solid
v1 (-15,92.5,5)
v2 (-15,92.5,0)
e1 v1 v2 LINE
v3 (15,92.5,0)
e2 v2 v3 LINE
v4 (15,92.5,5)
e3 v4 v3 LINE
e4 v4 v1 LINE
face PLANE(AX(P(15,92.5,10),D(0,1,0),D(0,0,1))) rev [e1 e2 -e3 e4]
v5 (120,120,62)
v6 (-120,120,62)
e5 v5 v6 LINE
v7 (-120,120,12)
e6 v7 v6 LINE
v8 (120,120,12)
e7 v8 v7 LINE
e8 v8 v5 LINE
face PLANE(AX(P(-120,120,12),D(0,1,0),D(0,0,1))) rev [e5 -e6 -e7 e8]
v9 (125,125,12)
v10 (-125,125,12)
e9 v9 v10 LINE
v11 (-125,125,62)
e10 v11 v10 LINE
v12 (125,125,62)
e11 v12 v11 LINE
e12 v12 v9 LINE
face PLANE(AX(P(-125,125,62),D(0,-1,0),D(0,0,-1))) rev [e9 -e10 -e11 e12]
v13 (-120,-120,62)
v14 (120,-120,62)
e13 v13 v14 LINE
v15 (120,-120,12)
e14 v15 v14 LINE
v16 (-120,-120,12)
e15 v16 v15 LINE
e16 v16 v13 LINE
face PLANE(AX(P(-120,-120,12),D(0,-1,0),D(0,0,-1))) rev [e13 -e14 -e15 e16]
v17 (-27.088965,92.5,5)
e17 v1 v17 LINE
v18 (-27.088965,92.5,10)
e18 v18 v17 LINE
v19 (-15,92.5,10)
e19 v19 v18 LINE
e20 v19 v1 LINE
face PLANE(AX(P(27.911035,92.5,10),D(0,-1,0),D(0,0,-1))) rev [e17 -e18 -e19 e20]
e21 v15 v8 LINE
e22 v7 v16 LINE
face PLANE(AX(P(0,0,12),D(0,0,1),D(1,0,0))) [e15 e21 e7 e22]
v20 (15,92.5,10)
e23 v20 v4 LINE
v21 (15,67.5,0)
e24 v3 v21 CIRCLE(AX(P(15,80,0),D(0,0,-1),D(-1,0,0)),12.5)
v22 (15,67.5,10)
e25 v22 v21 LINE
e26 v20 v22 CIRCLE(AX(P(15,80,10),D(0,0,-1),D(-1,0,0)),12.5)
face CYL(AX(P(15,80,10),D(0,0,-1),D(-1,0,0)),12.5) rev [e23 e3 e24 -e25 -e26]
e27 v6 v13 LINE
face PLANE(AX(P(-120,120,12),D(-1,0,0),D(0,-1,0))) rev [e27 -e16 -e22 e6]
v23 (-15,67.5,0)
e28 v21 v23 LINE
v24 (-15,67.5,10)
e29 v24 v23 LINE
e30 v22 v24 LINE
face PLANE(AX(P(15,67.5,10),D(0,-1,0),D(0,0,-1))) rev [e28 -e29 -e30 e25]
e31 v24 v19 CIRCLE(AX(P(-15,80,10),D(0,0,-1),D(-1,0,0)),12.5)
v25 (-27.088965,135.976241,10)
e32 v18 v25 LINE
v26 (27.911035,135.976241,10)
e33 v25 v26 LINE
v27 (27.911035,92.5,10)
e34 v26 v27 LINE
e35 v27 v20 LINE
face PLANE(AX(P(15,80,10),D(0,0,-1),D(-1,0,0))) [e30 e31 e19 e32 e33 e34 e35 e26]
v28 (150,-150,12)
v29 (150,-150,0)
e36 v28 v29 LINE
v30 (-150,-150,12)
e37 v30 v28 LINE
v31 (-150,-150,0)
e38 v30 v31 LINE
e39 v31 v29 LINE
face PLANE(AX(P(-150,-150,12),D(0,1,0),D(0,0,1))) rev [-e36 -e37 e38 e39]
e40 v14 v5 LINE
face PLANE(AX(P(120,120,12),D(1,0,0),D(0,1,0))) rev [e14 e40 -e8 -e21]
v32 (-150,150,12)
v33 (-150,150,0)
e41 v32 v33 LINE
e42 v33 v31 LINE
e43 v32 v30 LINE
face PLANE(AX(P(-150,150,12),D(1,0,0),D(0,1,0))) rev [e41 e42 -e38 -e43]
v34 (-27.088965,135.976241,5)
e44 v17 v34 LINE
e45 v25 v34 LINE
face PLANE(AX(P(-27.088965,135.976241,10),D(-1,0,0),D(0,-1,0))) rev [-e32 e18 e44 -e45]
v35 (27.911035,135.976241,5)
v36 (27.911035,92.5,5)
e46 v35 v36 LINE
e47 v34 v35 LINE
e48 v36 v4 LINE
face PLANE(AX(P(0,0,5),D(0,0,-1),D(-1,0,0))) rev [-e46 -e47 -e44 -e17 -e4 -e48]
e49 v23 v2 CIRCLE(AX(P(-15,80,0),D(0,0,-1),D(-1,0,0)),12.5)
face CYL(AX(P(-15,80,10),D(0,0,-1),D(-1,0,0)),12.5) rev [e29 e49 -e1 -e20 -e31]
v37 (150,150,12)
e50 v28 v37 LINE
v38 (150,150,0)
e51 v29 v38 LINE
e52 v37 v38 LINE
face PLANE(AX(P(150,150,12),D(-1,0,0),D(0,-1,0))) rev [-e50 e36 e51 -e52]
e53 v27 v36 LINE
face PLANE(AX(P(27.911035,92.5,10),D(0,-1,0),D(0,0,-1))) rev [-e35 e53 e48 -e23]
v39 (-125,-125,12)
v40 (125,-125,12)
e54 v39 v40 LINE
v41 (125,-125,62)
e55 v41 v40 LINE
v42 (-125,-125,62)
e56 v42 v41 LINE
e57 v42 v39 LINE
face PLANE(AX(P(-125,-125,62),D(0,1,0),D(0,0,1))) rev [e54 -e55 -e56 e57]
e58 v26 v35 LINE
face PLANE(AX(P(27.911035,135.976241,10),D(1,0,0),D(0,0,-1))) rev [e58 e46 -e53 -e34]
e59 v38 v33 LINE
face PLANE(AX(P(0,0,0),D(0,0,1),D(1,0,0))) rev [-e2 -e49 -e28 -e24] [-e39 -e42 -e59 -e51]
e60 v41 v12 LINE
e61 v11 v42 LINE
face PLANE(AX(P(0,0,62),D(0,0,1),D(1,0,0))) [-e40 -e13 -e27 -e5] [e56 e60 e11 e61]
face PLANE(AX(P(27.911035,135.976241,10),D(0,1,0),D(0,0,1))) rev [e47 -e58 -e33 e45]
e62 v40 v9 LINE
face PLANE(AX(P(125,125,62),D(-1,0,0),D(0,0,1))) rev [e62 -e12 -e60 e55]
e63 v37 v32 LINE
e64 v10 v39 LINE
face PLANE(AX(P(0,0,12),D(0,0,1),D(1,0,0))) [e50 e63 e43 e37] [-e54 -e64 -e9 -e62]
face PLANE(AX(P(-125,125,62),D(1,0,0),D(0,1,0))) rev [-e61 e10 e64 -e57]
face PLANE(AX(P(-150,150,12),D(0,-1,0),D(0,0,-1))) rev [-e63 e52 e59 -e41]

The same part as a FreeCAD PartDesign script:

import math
import FreeCAD as App
import Part
import Sketcher

V = App.Vector


def add_polygon(sketch, points):
    """Adds a closed chain of lines whose ends are joined by coincident constraints."""
    first, n = sketch.GeometryCount, len(points)
    for a, b in zip(points, points[1:] + points[:1]):
        sketch.addGeometry(Part.LineSegment(App.Vector(*a, 0), App.Vector(*b, 0)), False)
    for i in range(n):
        sketch.addConstraint(Sketcher.Constraint("Coincident", first + i, 2, first + (i + 1) % n, 1))

doc = App.newDocument("Part")
body = doc.addObject("PartDesign::Body", "Body")

sketch1 = doc.addObject("Sketcher::SketchObject", "Sketch")
body.addObject(sketch1)
sketch1.AttachmentSupport = (doc.XY_Plane, [""])
sketch1.MapMode = "FlatFace"
add_polygon(sketch1, [(-150, 150), (-150, -150), (150, -150), (150, 150)])
sketch1.addConstraint([
    Sketcher.Constraint("Vertical", 0),
    Sketcher.Constraint("Horizontal", 1),
    Sketcher.Constraint("Vertical", 2),
    Sketcher.Constraint("Horizontal", 3),
    Sketcher.Constraint("Symmetric", 0, 2, 2, 2, -1, 1),
    Sketcher.Constraint("Equal", 3, 0),
    Sketcher.Constraint("DistanceX", 1, 1, 1, 2, 300.0),
])
pad1 = doc.addObject("PartDesign::Pad", "Pad")
body.addObject(pad1)
pad1.Profile = sketch1
pad1.Length = 12

sketch2 = doc.addObject("Sketcher::SketchObject", "Sketch001")
body.addObject(sketch2)
sketch2.AttachmentSupport = (doc.XY_Plane, [""])
sketch2.MapMode = "FlatFace"
sketch2.AttachmentOffset = App.Placement(V(0, 0, 12), App.Rotation())
add_polygon(sketch2, [(-125, 125), (-125, -125), (125, -125), (125, 125)])
sketch2.addConstraint([
    Sketcher.Constraint("Vertical", 0),
    Sketcher.Constraint("Horizontal", 1),
    Sketcher.Constraint("Vertical", 2),
    Sketcher.Constraint("Horizontal", 3),
    Sketcher.Constraint("Symmetric", 0, 2, 2, 2, -1, 1),
    Sketcher.Constraint("Equal", 3, 0),
    Sketcher.Constraint("DistanceX", 1, 1, 1, 2, 250.0),
])
pad2 = doc.addObject("PartDesign::Pad", "Pad001")
body.addObject(pad2)
pad2.Profile = sketch2
pad2.Length = 50

sketch3 = doc.addObject("Sketcher::SketchObject", "Sketch002")
body.addObject(sketch3)
sketch3.AttachmentSupport = (doc.XY_Plane, [""])
sketch3.MapMode = "FlatFace"
sketch3.addGeometry([
    Part.LineSegment(V(-15, 92, 0), V(15, 92, 0)),
    Part.ArcOfCircle(Part.Circle(V(15, 80, 0), V(0, 0, 1), 12), math.radians(-90), math.radians(90)),
    Part.LineSegment(V(15, 68, 0), V(-15, 68, 0)),
    Part.ArcOfCircle(Part.Circle(V(-15, 80, 0), V(0, 0, 1), 12), math.radians(90), math.radians(270)),
], False)
sketch3.addConstraint([
    Sketcher.Constraint("Tangent", 0, 2, 1, 2),
    Sketcher.Constraint("Tangent", 1, 1, 2, 1),
    Sketcher.Constraint("Tangent", 2, 2, 3, 2),
    Sketcher.Constraint("Tangent", 3, 1, 0, 1),
    Sketcher.Constraint("Horizontal", 0),
    Sketcher.Constraint("Horizontal", 2),
    Sketcher.Constraint("Radius", 1, 12.5),
    Sketcher.Constraint("DistanceX", 0, 1, 0, 2, 30.0),
    Sketcher.Constraint("DistanceX", -1, 1, 1, 3, 15.0),
    Sketcher.Constraint("DistanceY", -1, 1, 1, 3, 80.0),
])
pocket1 = doc.addObject("PartDesign::Pocket", "Pocket")
body.addObject(pocket1)
pocket1.Profile = sketch3
pocket1.Length = 10
pocket1.Reversed = True

sketch4 = doc.addObject("Sketcher::SketchObject", "Sketch003")
body.addObject(sketch4)
sketch4.AttachmentSupport = (doc.XY_Plane, [""])
sketch4.MapMode = "FlatFace"
sketch4.AttachmentOffset = App.Placement(V(0, 0, 5), App.Rotation())
add_polygon(sketch4, [(28, 136), (28, 92), (-27, 92), (-27, 136)])
sketch4.addConstraint([
    Sketcher.Constraint("Vertical", 0),
    Sketcher.Constraint("Horizontal", 1),
    Sketcher.Constraint("Vertical", 2),
    Sketcher.Constraint("Horizontal", 3),
    Sketcher.Constraint("DistanceX", 1, 2, 1, 1, 55.0),
    Sketcher.Constraint("DistanceY", -1, 1, 0, 2, 92.5),
    Sketcher.Constraint("DistanceY", 0, 2, 0, 1, 43.476241),
    Sketcher.Constraint("DistanceX", -1, 1, 0, 2, 27.911035),
])
pocket2 = doc.addObject("PartDesign::Pocket", "Pocket001")
body.addObject(pocket2)
pocket2.Profile = sketch4
pocket2.Length = 5
pocket2.Reversed = True

sketch5 = doc.addObject("Sketcher::SketchObject", "Sketch004")
body.addObject(sketch5)
sketch5.AttachmentSupport = (doc.XY_Plane, [""])
sketch5.MapMode = "FlatFace"
sketch5.AttachmentOffset = App.Placement(V(0, 0, 62), App.Rotation())
add_polygon(sketch5, [(-120, 120), (-120, -120), (120, -120), (120, 120)])
sketch5.addConstraint([
    Sketcher.Constraint("Vertical", 0),
    Sketcher.Constraint("Horizontal", 1),
    Sketcher.Constraint("Vertical", 2),
    Sketcher.Constraint("Horizontal", 3),
    Sketcher.Constraint("Symmetric", 0, 2, 2, 2, -1, 1),
    Sketcher.Constraint("Equal", 3, 0),
    Sketcher.Constraint("DistanceX", 1, 1, 1, 2, 240.0),
])
pocket3 = doc.addObject("PartDesign::Pocket", "Pocket002")
body.addObject(pocket3)
pocket3.Profile = sketch5
pocket3.Length = 50

doc.recompute()
